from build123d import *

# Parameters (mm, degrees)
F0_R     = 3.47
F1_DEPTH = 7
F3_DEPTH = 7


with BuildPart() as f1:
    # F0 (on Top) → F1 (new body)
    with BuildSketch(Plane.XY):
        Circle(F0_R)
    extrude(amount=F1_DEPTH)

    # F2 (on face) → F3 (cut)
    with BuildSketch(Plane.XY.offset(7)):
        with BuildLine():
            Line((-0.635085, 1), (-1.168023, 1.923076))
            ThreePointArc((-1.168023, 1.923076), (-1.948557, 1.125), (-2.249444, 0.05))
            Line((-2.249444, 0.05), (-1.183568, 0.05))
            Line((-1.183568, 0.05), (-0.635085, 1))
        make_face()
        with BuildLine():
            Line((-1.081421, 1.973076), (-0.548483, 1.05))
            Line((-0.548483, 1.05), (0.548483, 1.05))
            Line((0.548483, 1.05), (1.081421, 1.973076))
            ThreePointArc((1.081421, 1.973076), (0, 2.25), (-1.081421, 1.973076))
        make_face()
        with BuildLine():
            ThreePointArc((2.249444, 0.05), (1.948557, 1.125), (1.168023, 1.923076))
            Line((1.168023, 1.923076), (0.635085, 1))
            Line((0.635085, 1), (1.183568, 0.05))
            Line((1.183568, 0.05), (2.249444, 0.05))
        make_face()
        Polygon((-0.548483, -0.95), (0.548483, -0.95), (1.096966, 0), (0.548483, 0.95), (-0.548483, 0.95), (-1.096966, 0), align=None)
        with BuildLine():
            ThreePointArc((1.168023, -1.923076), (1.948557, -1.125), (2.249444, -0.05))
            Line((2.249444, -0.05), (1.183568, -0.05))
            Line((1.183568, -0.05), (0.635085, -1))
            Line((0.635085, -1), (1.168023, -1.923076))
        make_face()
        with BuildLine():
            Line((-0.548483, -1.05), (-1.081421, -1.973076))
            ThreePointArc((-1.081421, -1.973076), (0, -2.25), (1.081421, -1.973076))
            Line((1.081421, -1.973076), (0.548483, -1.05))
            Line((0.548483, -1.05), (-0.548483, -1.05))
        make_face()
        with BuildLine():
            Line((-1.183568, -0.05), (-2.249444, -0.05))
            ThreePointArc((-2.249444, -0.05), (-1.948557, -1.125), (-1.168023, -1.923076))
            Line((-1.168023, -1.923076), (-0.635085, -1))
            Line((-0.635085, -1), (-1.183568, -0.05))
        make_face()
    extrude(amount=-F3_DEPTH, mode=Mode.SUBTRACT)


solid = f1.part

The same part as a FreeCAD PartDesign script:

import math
import FreeCAD as App
import Part
import Sketcher

V = App.Vector
Q = App.Units.Quantity

doc = App.newDocument("Part")
body = doc.addObject("PartDesign::Body", "Body")

sketch1 = doc.addObject("Sketcher::SketchObject", "Sketch")
body.addObject(sketch1)
sketch1.AttachmentSupport = (doc.XY_Plane, [""])
sketch1.MapMode = "FlatFace"
sketch1.addGeometry(Part.Circle(V(0, 0, 0), V(0, 0, 1), 3.5), False)
sketch1.addConstraint(Sketcher.Constraint("Coincident", 0, 3, -1, 1))
sketch1.addConstraint(Sketcher.Constraint("Diameter", 0, 6.94))
pad1 = doc.addObject("PartDesign::Pad", "Pad")
body.addObject(pad1)
pad1.Profile = sketch1
pad1.Length = 7

sketch2 = doc.addObject("Sketcher::SketchObject", "Sketch001")
body.addObject(sketch2)
sketch2.AttachmentSupport = (doc.XY_Plane, [""])
sketch2.MapMode = "FlatFace"
sketch2.AttachmentOffset = App.Placement(V(0, 0, 7), App.Rotation())
sketch2.addGeometry(Part.LineSegment(V(-0.6, 1, 0), V(-1.2, 1.9, 0)), False)
sketch2.addGeometry(Part.ArcOfCircle(Part.Circle(V(0, 0, 0), V(0, 0, 1), 2.2), math.radians(121), math.radians(179)), False)
sketch2.addGeometry(Part.LineSegment(V(-2.2, 0.1, 0), V(-1.2, 0.1, 0)), False)
sketch2.addGeometry(Part.LineSegment(V(-1.2, 0.1, 0), V(-0.6, 1, 0)), False)
sketch2.addGeometry(Part.LineSegment(V(-1.1, 2, 0), V(-0.5, 1.1, 0)), False)
sketch2.addGeometry(Part.LineSegment(V(-0.5, 1.1, 0), V(0.5, 1.1, 0)), False)
sketch2.addGeometry(Part.LineSegment(V(0.5, 1.1, 0), V(1.1, 2, 0)), False)
sketch2.addGeometry(Part.ArcOfCircle(Part.Circle(V(0, 0, 0), V(0, 0, 1), 2.3), math.radians(61), math.radians(119)), False)
sketch2.addGeometry(Part.ArcOfCircle(Part.Circle(V(0, 0, 0), V(0, 0, 1), 2.2), math.radians(1), math.radians(59)), False)
sketch2.addGeometry(Part.LineSegment(V(1.2, 1.9, 0), V(0.6, 1, 0)), False)
sketch2.addGeometry(Part.LineSegment(V(0.6, 1, 0), V(1.2, 0.1, 0)), False)
sketch2.addGeometry(Part.LineSegment(V(1.2, 0.1, 0), V(2.2, 0.1, 0)), False)
sketch2.addGeometry(Part.LineSegment(V(-0.5, -0.9, 0), V(0.5, -0.9, 0)), False)
sketch2.addGeometry(Part.LineSegment(V(0.5, -0.9, 0), V(1.1, 0, 0)), False)
sketch2.addGeometry(Part.LineSegment(V(1.1, 0, 0), V(0.5, 0.9, 0)), False)
sketch2.addGeometry(Part.LineSegment(V(0.5, 0.9, 0), V(-0.5, 0.9, 0)), False)
sketch2.addGeometry(Part.LineSegment(V(-0.5, 0.9, 0), V(-1.1, 0, 0)), False)
sketch2.addGeometry(Part.LineSegment(V(-1.1, 0, 0), V(-0.5, -0.9, 0)), False)
sketch2.addGeometry(Part.ArcOfCircle(Part.Circle(V(0, 0, 0), V(0, 0, 1), 2.2), math.radians(-59), math.radians(-1)), False)
sketch2.addGeometry(Part.LineSegment(V(2.2, -0.1, 0), V(1.2, -0.1, 0)), False)
sketch2.addGeometry(Part.LineSegment(V(1.2, -0.1, 0), V(0.6, -1, 0)), False)
sketch2.addGeometry(Part.LineSegment(V(0.6, -1, 0), V(1.2, -1.9, 0)), False)
sketch2.addGeometry(Part.LineSegment(V(-0.5, -1.1, 0), V(-1.1, -2, 0)), False)
sketch2.addGeometry(Part.ArcOfCircle(Part.Circle(V(0, 0, 0), V(0, 0, 1), 2.3), math.radians(-119), math.radians(-61)), False)
sketch2.addGeometry(Part.LineSegment(V(1.1, -2, 0), V(0.5, -1.1, 0)), False)
sketch2.addGeometry(Part.LineSegment(V(0.5, -1.1, 0), V(-0.5, -1.1, 0)), False)
sketch2.addGeometry(Part.LineSegment(V(-1.2, -0.1, 0), V(-2.2, -0.1, 0)), False)
sketch2.addGeometry(Part.ArcOfCircle(Part.Circle(V(0, 0, 0), V(0, 0, 1), 2.2), math.radians(-179), math.radians(-121)), False)
sketch2.addGeometry(Part.LineSegment(V(-1.2, -1.9, 0), V(-0.6, -1, 0)), False)
sketch2.addGeometry(Part.LineSegment(V(-0.6, -1, 0), V(-1.2, -0.1, 0)), False)
sketch2.addConstraint(Sketcher.Constraint("Coincident", 0, 2, 1, 1))
sketch2.addConstraint(Sketcher.Constraint("Coincident", 1, 2, 2, 1))
sketch2.addConstraint(Sketcher.Constraint("Coincident", 2, 2, 3, 1))
sketch2.addConstraint(Sketcher.Constraint("Coincident", 3, 2, 0, 1))
sketch2.addConstraint(Sketcher.Constraint("Coincident", 4, 2, 5, 1))
sketch2.addConstraint(Sketcher.Constraint("Coincident", 5, 2, 6, 1))
sketch2.addConstraint(Sketcher.Constraint("Coincident", 6, 2, 7, 1))
sketch2.addConstraint(Sketcher.Constraint("Coincident", 7, 2, 4, 1))
sketch2.addConstraint(Sketcher.Constraint("Coincident", 8, 2, 9, 1))
sketch2.addConstraint(Sketcher.Constraint("Coincident", 9, 2, 10, 1))
sketch2.addConstraint(Sketcher.Constraint("Coincident", 10, 2, 11, 1))
sketch2.addConstraint(Sketcher.Constraint("Coincident", 11, 2, 8, 1))
sketch2.addConstraint(Sketcher.Constraint("Coincident", 12, 2, 13, 1))
sketch2.addConstraint(Sketcher.Constraint("Coincident", 13, 2, 14, 1))
sketch2.addConstraint(Sketcher.Constraint("Coincident", 14, 2, 15, 1))
sketch2.addConstraint(Sketcher.Constraint("Coincident", 15, 2, 16, 1))
sketch2.addConstraint(Sketcher.Constraint("Coincident", 16, 2, 17, 1))
sketch2.addConstraint(Sketcher.Constraint("Coincident", 17, 2, 12, 1))
sketch2.addConstraint(Sketcher.Constraint("Coincident", 18, 2, 19, 1))
sketch2.addConstraint(Sketcher.Constraint("Coincident", 19, 2, 20, 1))
sketch2.addConstraint(Sketcher.Constraint("Coincident", 20, 2, 21, 1))
sketch2.addConstraint(Sketcher.Constraint("Coincident", 21, 2, 18, 1))
sketch2.addConstraint(Sketcher.Constraint("Coincident", 22, 2, 23, 1))
sketch2.addConstraint(Sketcher.Constraint("Coincident", 23, 2, 24, 1))
sketch2.addConstraint(Sketcher.Constraint("Coincident", 24, 2, 25, 1))
sketch2.addConstraint(Sketcher.Constraint("Coincident", 25, 2, 22, 1))
sketch2.addConstraint(Sketcher.Constraint("Coincident", 26, 2, 27, 1))
sketch2.addConstraint(Sketcher.Constraint("Coincident", 27, 2, 28, 1))
sketch2.addConstraint(Sketcher.Constraint("Coincident", 28, 2, 29, 1))
sketch2.addConstraint(Sketcher.Constraint("Coincident", 29, 2, 26, 1))
sketch2.addConstraint(Sketcher.Constraint("Horizontal", 2))
sketch2.addConstraint(Sketcher.Constraint("Horizontal", 5))
sketch2.addConstraint(Sketcher.Constraint("Horizontal", 11))
sketch2.addConstraint(Sketcher.Constraint("Horizontal", 12))
sketch2.addConstraint(Sketcher.Constraint("Horizontal", 15))
sketch2.addConstraint(Sketcher.Constraint("Horizontal", 19))
sketch2.addConstraint(Sketcher.Constraint("Horizontal", 25))
sketch2.addConstraint(Sketcher.Constraint("Horizontal", 26))
sketch2.addConstraint(Sketcher.Constraint("Coincident", 1, 3, -1, 1))
sketch2.addConstraint(Sketcher.Constraint("Coincident", 7, 3, -1, 1))
sketch2.addConstraint(Sketcher.Constraint("Coincident", 8, 3, -1, 1))
sketch2.addConstraint(Sketcher.Constraint("Coincident", 18, 3, -1, 1))
sketch2.addConstraint(Sketcher.Constraint("Coincident", 23, 3, -1, 1))
sketch2.addConstraint(Sketcher.Constraint("Coincident", 27, 3, -1, 1))
sketch2.addConstraint(Sketcher.Constraint("Equal", 1, 7))
sketch2.addConstraint(Sketcher.Constraint("Equal", 7, 8))
sketch2.addConstraint(Sketcher.Constraint("Equal", 8, 18))
sketch2.addConstraint(Sketcher.Constraint("Equal", 18, 23))
sketch2.addConstraint(Sketcher.Constraint("Equal", 23, 27))
sketch2.addConstraint(Sketcher.Constraint("Symmetric", 12, 2, 15, 2, -1, 1))
sketch2.addConstraint(Sketcher.Constraint("Symmetric", 13, 2, 16, 2, -1, 1))
sketch2.addConstraint(Sketcher.Constraint("Symmetric", 2, 2, 19, 2, -1, 1))
sketch2.addConstraint(Sketcher.Constraint("Symmetric", 3, 2, 20, 2, -1, 1))
sketch2.addConstraint(Sketcher.Constraint("Symmetric", 4, 2, 24, 2, -1, 1))
sketch2.addConstraint(Sketcher.Constraint("Symmetric", 9, 2, 28, 2, -1, 1))
sketch2.addConstraint(Sketcher.Constraint("Symmetric", 10, 2, 29, 2, -1, 1))
sketch2.addConstraint(Sketcher.Constraint("Symmetric", 3, 2, 9, 2, -2))
sketch2.addConstraint(Sketcher.Constraint("Symmetric", 2, 2, 10, 2, -2))
sketch2.addConstraint(Sketcher.Constraint("PointOnObject", 13, 2, -1))
sketch2.addConstraint(Sketcher.Constraint("Parallel", 0, 4))
sketch2.addConstraint(Sketcher.Constraint("Parallel", 3, 6))
sketch2.addConstraint(Sketcher.Constraint("Parallel", 6, 9))
sketch2.addConstraint(Sketcher.Constraint("Parallel", 4, 10))
sketch2.addConstraint(Sketcher.Constraint("Parallel", 9, 13))
sketch2.addConstraint(Sketcher.Constraint("Parallel", 10, 14))
sketch2.addConstraint(Sketcher.Constraint("Parallel", 14, 17))
sketch2.addConstraint(Sketcher.Constraint("Parallel", 17, 21))
sketch2.addConstraint(Sketcher.Constraint("Parallel", 20, 22))
sketch2.addConstraint(Sketcher.Constraint("Parallel", 21, 24))
sketch2.addConstraint(Sketcher.Constraint("Parallel", 22, 28))
sketch2.addConstraint(Sketcher.Constraint("Horizontal", 6, 2, 7, 2))
sketch2.addConstraint(Sketcher.Constraint("Horizontal", 22, 2, 23, 2))
sketch2.addConstraint(Sketcher.Constraint("Vertical", 5, 2, 12, 2))
sketch2.addConstraint(Sketcher.Constraint("Equal", 0, 4))
sketch2.addConstraint(Sketcher.Constraint("Equal", 10, 13))
sketch2.addConstraint(Sketcher.Constraint("Angle", 0, Q("119.999992 deg")))
sketch2.addConstraint(Sketcher.Constraint("Radius", 1, 2.249999))
sketch2.addConstraint(Sketcher.Constraint("DistanceY", -1, 1, 3, 2, 1.0))
sketch2.addConstraint(Sketcher.Constraint("DistanceY", 2, 2, 4, 2, 1.0))
sketch2.addConstraint(Sketcher.Constraint("DistanceY", 14, 2, 5, 2, 0.1))
sketch2.addConstraint(Sketcher.Constraint("DistanceX", 3, 2, 4, 2, 0.086602))
pocket1 = doc.addObject("PartDesign::Pocket", "Pocket")
body.addObject(pocket1)
pocket1.Profile = sketch2
pocket1.Length = 7

doc.recompute()
